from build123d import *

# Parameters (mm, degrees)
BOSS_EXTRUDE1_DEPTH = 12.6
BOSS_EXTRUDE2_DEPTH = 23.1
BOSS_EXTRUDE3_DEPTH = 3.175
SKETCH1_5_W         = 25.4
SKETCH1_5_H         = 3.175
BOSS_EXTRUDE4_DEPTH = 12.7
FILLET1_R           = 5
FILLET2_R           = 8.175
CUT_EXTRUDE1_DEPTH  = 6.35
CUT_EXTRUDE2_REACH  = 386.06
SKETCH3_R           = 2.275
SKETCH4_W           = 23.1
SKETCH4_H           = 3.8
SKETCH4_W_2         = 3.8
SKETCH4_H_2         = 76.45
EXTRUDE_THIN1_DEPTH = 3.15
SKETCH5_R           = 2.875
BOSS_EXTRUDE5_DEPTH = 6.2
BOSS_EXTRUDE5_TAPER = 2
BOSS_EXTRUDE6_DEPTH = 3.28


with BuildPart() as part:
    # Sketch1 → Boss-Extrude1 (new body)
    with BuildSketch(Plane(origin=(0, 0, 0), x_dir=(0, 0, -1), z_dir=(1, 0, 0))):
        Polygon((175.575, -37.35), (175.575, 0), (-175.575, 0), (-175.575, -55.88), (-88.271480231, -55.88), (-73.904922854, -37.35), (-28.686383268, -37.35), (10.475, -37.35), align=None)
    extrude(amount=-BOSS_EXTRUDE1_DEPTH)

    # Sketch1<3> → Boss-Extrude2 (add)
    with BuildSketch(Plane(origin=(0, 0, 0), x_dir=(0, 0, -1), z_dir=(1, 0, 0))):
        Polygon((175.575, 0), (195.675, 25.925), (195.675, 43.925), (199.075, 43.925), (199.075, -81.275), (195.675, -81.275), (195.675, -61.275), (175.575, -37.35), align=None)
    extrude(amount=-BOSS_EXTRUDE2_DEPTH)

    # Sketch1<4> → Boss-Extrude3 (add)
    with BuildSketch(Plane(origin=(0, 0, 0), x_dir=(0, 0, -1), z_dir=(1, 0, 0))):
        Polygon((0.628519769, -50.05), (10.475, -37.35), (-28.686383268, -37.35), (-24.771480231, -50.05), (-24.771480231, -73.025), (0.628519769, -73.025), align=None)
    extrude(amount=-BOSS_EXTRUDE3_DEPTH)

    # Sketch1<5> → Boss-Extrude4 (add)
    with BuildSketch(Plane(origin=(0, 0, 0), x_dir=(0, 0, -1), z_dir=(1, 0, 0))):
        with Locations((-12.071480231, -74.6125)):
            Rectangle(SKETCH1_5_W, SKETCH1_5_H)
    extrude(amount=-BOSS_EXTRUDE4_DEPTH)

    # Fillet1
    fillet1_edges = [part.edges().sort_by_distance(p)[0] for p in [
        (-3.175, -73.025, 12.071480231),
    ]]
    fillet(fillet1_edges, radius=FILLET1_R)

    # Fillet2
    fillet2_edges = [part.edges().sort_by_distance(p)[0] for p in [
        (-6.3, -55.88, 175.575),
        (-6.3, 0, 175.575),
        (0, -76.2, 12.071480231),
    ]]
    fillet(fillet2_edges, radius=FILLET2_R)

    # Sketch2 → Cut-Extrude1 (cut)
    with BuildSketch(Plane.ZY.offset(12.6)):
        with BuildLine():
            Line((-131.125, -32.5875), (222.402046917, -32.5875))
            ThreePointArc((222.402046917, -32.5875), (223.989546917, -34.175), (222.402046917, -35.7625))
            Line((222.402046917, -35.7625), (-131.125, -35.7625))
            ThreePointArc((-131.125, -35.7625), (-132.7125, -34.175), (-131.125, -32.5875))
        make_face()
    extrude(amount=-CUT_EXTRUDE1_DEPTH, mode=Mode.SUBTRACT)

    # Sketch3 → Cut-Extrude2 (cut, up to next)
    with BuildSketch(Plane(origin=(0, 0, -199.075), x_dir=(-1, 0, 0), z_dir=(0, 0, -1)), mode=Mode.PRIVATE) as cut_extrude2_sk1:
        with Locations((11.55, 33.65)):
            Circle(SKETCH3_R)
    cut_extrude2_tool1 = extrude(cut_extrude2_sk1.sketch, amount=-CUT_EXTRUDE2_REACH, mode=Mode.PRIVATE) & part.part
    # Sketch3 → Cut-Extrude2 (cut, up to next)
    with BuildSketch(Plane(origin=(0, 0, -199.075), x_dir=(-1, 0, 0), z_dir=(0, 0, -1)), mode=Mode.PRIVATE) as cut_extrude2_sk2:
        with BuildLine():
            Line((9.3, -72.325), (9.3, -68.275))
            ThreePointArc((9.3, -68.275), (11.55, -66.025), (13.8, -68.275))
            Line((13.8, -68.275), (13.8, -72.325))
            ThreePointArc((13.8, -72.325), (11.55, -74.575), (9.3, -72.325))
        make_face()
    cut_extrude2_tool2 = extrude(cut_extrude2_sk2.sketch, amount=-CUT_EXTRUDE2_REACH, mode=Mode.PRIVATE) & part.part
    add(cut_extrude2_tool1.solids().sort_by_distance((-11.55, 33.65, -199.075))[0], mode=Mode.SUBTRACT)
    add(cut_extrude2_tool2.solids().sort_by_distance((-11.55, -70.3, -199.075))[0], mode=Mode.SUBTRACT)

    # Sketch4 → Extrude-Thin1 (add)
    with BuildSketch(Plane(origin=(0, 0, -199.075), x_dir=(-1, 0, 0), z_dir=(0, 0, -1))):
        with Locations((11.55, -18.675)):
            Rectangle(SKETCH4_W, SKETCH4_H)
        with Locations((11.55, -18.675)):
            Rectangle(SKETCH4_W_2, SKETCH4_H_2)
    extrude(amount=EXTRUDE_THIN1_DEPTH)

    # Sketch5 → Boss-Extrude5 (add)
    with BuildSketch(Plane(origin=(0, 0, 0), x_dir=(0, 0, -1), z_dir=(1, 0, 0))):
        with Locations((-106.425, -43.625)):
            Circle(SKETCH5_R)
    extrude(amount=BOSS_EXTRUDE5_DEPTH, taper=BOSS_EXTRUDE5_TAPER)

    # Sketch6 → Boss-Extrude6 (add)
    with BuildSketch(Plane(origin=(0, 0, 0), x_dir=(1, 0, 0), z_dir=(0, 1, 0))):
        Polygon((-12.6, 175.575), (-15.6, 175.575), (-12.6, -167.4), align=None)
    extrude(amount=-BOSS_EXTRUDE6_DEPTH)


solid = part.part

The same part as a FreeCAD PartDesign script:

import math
import FreeCAD as App
import Part
import Sketcher
from FreeCAD import Vector


def edges_at(feature, points):
    """Names of the edges that pass closest to the given points."""
    edges = feature.Shape.Edges
    near = lambda p: min(range(len(edges)), key=lambda i: edges[i].distToShape(Part.Vertex(*p))[0])
    return sorted({f"Edge{near(p) + 1}" for p in points})


def add_polygon(sketch, points):
    """Adds a closed chain of lines whose ends are joined by coincident constraints."""
    first, n = sketch.GeometryCount, len(points)
    for a, b in zip(points, points[1:] + points[:1]):
        sketch.addGeometry(Part.LineSegment(App.Vector(*a, 0), App.Vector(*b, 0)), False)
    for i in range(n):
        sketch.addConstraint(Sketcher.Constraint("Coincident", first + i, 2, first + (i + 1) % n, 1))

doc = App.newDocument("Part")
body = doc.addObject("PartDesign::Body", "Body")

# Sketch on YZ plane
sketch1 = body.newObject("Sketcher::SketchObject", "Sketch")
sketch1.AttachmentSupport = (doc.getObject("YZ_Plane"), [""])
sketch1.MapMode = "FlatFace"
add_polygon(sketch1, [(-37.35, -175.575), (0, -175.575), (0, 175.575), (-55.88, 175.575), (-55.88, 88.27148), (-37.35, 73.904923)])  # lines 0-5
sketch1.addConstraint(Sketcher.Constraint("Horizontal", 0))
sketch1.addConstraint(Sketcher.Constraint("Vertical", 1))
sketch1.addConstraint(Sketcher.Constraint("Horizontal", 2))
sketch1.addConstraint(Sketcher.Constraint("Vertical", 3))
sketch1.addConstraint(Sketcher.Constraint("Vertical", 5))
sketch1.addConstraint(Sketcher.Constraint("Symmetric", 0, 2, 1, 2, -1, 1))
sketch1.addConstraint(Sketcher.Constraint("DistanceX", 0, 1, 0, 2, 37.35))
sketch1.addConstraint(Sketcher.Constraint("DistanceX", 2, 2, 2, 1, 55.88))
sketch1.addConstraint(Sketcher.Constraint("DistanceY", 1, 1, 1, 2, 351.15))
sketch1.addConstraint(Sketcher.Constraint("DistanceY", 3, 2, 3, 1, 87.30352))
sketch1.addConstraint(Sketcher.Constraint("DistanceY", 5, 2, 5, 1, 249.479923))
pad1 = body.newObject("PartDesign::Pad", "Pad")
pad1.Profile = sketch1
pad1.Length = 12.6
pad1.Reversed = True

# Sketch on YZ plane
sketch2 = body.newObject("Sketcher::SketchObject", "Sketch001")
sketch2.AttachmentSupport = (doc.getObject("YZ_Plane"), [""])
sketch2.MapMode = "FlatFace"
add_polygon(sketch2, [(25.925, -195.675), (0, -175.575), (-37.35, -175.575), (-61.275, -195.675), (-81.275, -195.675), (-81.275, -199.075), (43.925, -199.075), (43.925, -195.675)])  # lines 0-7
sketch2.addConstraint(Sketcher.Constraint("Horizontal", 1))
sketch2.addConstraint(Sketcher.Constraint("Horizontal", 3))
sketch2.addConstraint(Sketcher.Constraint("Vertical", 4))
sketch2.addConstraint(Sketcher.Constraint("Horizontal", 5))
sketch2.addConstraint(Sketcher.Constraint("Vertical", 6))
sketch2.addConstraint(Sketcher.Constraint("Horizontal", 7))
sketch2.addConstraint(Sketcher.Constraint("PointOnObject", 0, 2, -2))
sketch2.addConstraint(Sketcher.Constraint("Horizontal", 3, 2, 6, 2))
sketch2.addConstraint(Sketcher.Constraint("DistanceX", 3, 2, 3, 1, 20.0))
sketch2.addConstraint(Sketcher.Constraint("DistanceX", 7, 2, 7, 1, 18.0))
sketch2.addConstraint(Sketcher.Constraint("DistanceX", 5, 1, 5, 2, 125.2))
sketch2.addConstraint(Sketcher.Constraint("DistanceY", 4, 2, 4, 1, 3.4))
sketch2.addConstraint(Sketcher.Constraint("DistanceX", 1, 2, 1, 1, 37.35))
sketch2.addConstraint(Sketcher.Constraint("DistanceY", 2, 2, 1, 2, 20.1))
sketch2.addConstraint(Sketcher.Constraint("DistanceY", 0, 2, -1, 1, 175.575))
sketch2.addConstraint(Sketcher.Constraint("DistanceX", 2, 2, -1, 1, 61.275))
pad2 = body.newObject("PartDesign::Pad", "Pad001")
pad2.Profile = sketch2
pad2.Length = 23.1
pad2.Reversed = True

# Sketch on YZ plane
sketch3 = body.newObject("Sketcher::SketchObject", "Sketch002")
sketch3.AttachmentSupport = (doc.getObject("YZ_Plane"), [""])
sketch3.MapMode = "FlatFace"
add_polygon(sketch3, [(-50.05, -0.62852), (-37.35, -10.475), (-37.35, 28.686383), (-50.05, 24.77148), (-73.025, 24.77148), (-73.025, -0.62852)])  # lines 0-5
sketch3.addConstraint(Sketcher.Constraint("Vertical", 1))
sketch3.addConstraint(Sketcher.Constraint("Horizontal", 3))
sketch3.addConstraint(Sketcher.Constraint("Vertical", 4))
sketch3.addConstraint(Sketcher.Constraint("Horizontal", 5))
sketch3.addConstraint(Sketcher.Constraint("Vertical", 2, 2, 5, 2))
sketch3.addConstraint(Sketcher.Constraint("DistanceY", 4, 2, 4, 1, 25.4))
sketch3.addConstraint(Sketcher.Constraint("DistanceX", 2, 2, 1, 2, 12.7))
sketch3.addConstraint(Sketcher.Constraint("DistanceX", 3, 2, 3, 1, 22.975))
sketch3.addConstraint(Sketcher.Constraint("DistanceX", 0, 2, -1, 1, 37.35))
sketch3.addConstraint(Sketcher.Constraint("DistanceY", 0, 2, -1, 1, 10.475))
sketch3.addConstraint(Sketcher.Constraint("DistanceY", 1, 1, 1, 2, 39.161383))
sketch3.addConstraint(Sketcher.Constraint("DistanceY", -1, 1, 2, 2, 24.77148))
pad3 = body.newObject("PartDesign::Pad", "Pad002")
pad3.Profile = sketch3
pad3.Length = 3.175
pad3.Reversed = True

# Sketch on YZ plane
sketch4 = body.newObject("Sketcher::SketchObject", "Sketch003")
sketch4.AttachmentSupport = (doc.getObject("YZ_Plane"), [""])
sketch4.MapMode = "FlatFace"
add_polygon(sketch4, [(-73.025, 24.77148), (-76.2, 24.77148), (-76.2, -0.62852), (-73.025, -0.62852)])  # lines 0-3
sketch4.addConstraint(Sketcher.Constraint("Horizontal", 0))
sketch4.addConstraint(Sketcher.Constraint("Vertical", 1))
sketch4.addConstraint(Sketcher.Constraint("Horizontal", 2))
sketch4.addConstraint(Sketcher.Constraint("Vertical", 3))
sketch4.addConstraint(Sketcher.Constraint("DistanceY", 1, 2, 1, 1, 25.4))
sketch4.addConstraint(Sketcher.Constraint("DistanceX", 0, 2, -1, 1, 76.2))
sketch4.addConstraint(Sketcher.Constraint("DistanceX", 0, 2, 0, 1, 3.175))
sketch4.addConstraint(Sketcher.Constraint("DistanceY", -1, 1, 0, 2, 24.77148))
pad4 = body.newObject("PartDesign::Pad", "Pad003")
pad4.Profile = sketch4
pad4.Length = 12.7
pad4.Reversed = True
doc.recompute()

fillet = body.newObject("PartDesign::Fillet", "Fillet")
fillet.Base = (pad4, edges_at(pad4, [(-3.175, -73.025, 12.071)]))
fillet.Radius = 5
doc.recompute()

fillet2 = body.newObject("PartDesign::Fillet", "Fillet001")
fillet2.Base = (fillet, edges_at(fillet, [(-6.3, -55.88, 175.575), (-6.3, 0, 175.575), (0, -76.2, 12.071)]))
fillet2.Radius = 8.175

# Sketch on YZ plane
sketch5 = body.newObject("Sketcher::SketchObject", "Sketch004")
sketch5.AttachmentSupport = (doc.getObject("YZ_Plane"), [""])
sketch5.MapMode = "FlatFace"
sketch5.AttachmentOffset = App.Placement(Vector(0, 0, -12.6), App.Rotation())
sketch5.addGeometry(Part.LineSegment(Vector(-32.5875, 222.402047, 0), Vector(-32.5875, -131.125, 0)), False)
sketch5.addGeometry(Part.ArcOfCircle(Part.Circle(Vector(-34.175, -131.125, 0), Vector(0, 0, 1), 1.5875), math.radians(180), math.radians(360)), False)
sketch5.addGeometry(Part.LineSegment(Vector(-35.7625, -131.125, 0), Vector(-35.7625, 222.402047, 0)), False)
sketch5.addGeometry(Part.ArcOfCircle(Part.Circle(Vector(-34.175, 222.402047, 0), Vector(0, 0, 1), 1.5875), math.radians(0), math.radians(180)), False)
sketch5.addConstraint(Sketcher.Constraint("Tangent", 0, 2, 1, 2))
sketch5.addConstraint(Sketcher.Constraint("Tangent", 1, 1, 2, 1))
sketch5.addConstraint(Sketcher.Constraint("Tangent", 2, 2, 3, 2))
sketch5.addConstraint(Sketcher.Constraint("Tangent", 3, 1, 0, 1))
sketch5.addConstraint(Sketcher.Constraint("Vertical", 0))
sketch5.addConstraint(Sketcher.Constraint("Vertical", 2))
sketch5.addConstraint(Sketcher.Constraint("Radius", 1, 1.5875))
sketch5.addConstraint(Sketcher.Constraint("DistanceX", 1, 3, -1, 1, 34.175))
sketch5.addConstraint(Sketcher.Constraint("DistanceY", 1, 3, -1, 1, 131.125))
sketch5.addConstraint(Sketcher.Constraint("DistanceY", 0, 2, 0, 1, 353.527047))
pocket1 = body.newObject("PartDesign::Pocket", "Pocket")
pocket1.Profile = sketch5
pocket1.Length = 6.35
pocket1.Reversed = True

# Sketch on XY plane
sketch6 = body.newObject("Sketcher::SketchObject", "Sketch005")
sketch6.AttachmentSupport = (doc.getObject("XY_Plane"), [""])
sketch6.MapMode = "FlatFace"
sketch6.AttachmentOffset = App.Placement(Vector(0, 0, -199.075), App.Rotation())
sketch6.addGeometry(Part.Circle(Vector(-11.55, 33.65, 0), Vector(0, 0, 1), 2.275), False)
sketch6.addConstraint(Sketcher.Constraint("Diameter", 0, 4.55))
sketch6.addConstraint(Sketcher.Constraint("DistanceX", 0, 3, -1, 1, 11.55))
sketch6.addConstraint(Sketcher.Constraint("DistanceY", -1, 1, 0, 3, 33.65))
pocket2 = body.newObject("PartDesign::Pocket", "Pocket001")
pocket2.Profile = sketch6
pocket2.Type = "UpToFirst"
pocket2.Reversed = True

# Sketch on XY plane
sketch7 = body.newObject("Sketcher::SketchObject", "Sketch006")
sketch7.AttachmentSupport = (doc.getObject("XY_Plane"), [""])
sketch7.MapMode = "FlatFace"
sketch7.AttachmentOffset = App.Placement(Vector(0, 0, -199.075), App.Rotation())
sketch7.addGeometry(Part.LineSegment(Vector(-9.3, -68.275, 0), Vector(-9.3, -72.325, 0)), False)
sketch7.addGeometry(Part.ArcOfCircle(Part.Circle(Vector(-11.55, -72.325, 0), Vector(0, 0, 1), 2.25), math.radians(180), math.radians(360)), False)
sketch7.addGeometry(Part.LineSegment(Vector(-13.8, -72.325, 0), Vector(-13.8, -68.275, 0)), False)
sketch7.addGeometry(Part.ArcOfCircle(Part.Circle(Vector(-11.55, -68.275, 0), Vector(0, 0, 1), 2.25), math.radians(0), math.radians(180)), False)
sketch7.addConstraint(Sketcher.Constraint("Tangent", 0, 2, 1, 2))
sketch7.addConstraint(Sketcher.Constraint("Tangent", 1, 1, 2, 1))
sketch7.addConstraint(Sketcher.Constraint("Tangent", 2, 2, 3, 2))
sketch7.addConstraint(Sketcher.Constraint("Tangent", 3, 1, 0, 1))
sketch7.addConstraint(Sketcher.Constraint("Vertical", 0))
sketch7.addConstraint(Sketcher.Constraint("Vertical", 2))
sketch7.addConstraint(Sketcher.Constraint("Radius", 1, 2.25))
sketch7.addConstraint(Sketcher.Constraint("DistanceY", 0, 2, 0, 1, 4.05))
sketch7.addConstraint(Sketcher.Constraint("DistanceX", 0, 2, -1, 1, 9.3))
sketch7.addConstraint(Sketcher.Constraint("DistanceY", 1, 3, -1, 1, 72.325))
pocket3 = body.newObject("PartDesign::Pocket", "Pocket002")
pocket3.Profile = sketch7
pocket3.Type = "UpToFirst"
pocket3.Reversed = True

# Sketch on XY plane
sketch8 = body.newObject("Sketcher::SketchObject", "Sketch007")
sketch8.AttachmentSupport = (doc.getObject("XY_Plane"), [""])
sketch8.MapMode = "FlatFace"
sketch8.AttachmentOffset = App.Placement(Vector(0, 0, -199.075), App.Rotation())
add_polygon(sketch8, [(0, -16.775), (0, -20.575), (-9.65, -20.575), (-9.65, -56.9), (-13.45, -56.9), (-13.45, -20.575), (-23.1, -20.575), (-23.1, -16.775), (-13.45, -16.775), (-13.45, 19.55), (-9.65, 19.55), (-9.65, -16.775)])  # lines 0-11
sketch8.addConstraint(Sketcher.Constraint("Vertical", 0))
sketch8.addConstraint(Sketcher.Constraint("Horizontal", 1))
sketch8.addConstraint(Sketcher.Constraint("Vertical", 2))
sketch8.addConstraint(Sketcher.Constraint("Horizontal", 3))
sketch8.addConstraint(Sketcher.Constraint("Vertical", 4))
sketch8.addConstraint(Sketcher.Constraint("Horizontal", 5))
sketch8.addConstraint(Sketcher.Constraint("Vertical", 6))
sketch8.addConstraint(Sketcher.Constraint("Horizontal", 7))
sketch8.addConstraint(Sketcher.Constraint("Vertical", 8))
sketch8.addConstraint(Sketcher.Constraint("Horizontal", 9))
sketch8.addConstraint(Sketcher.Constraint("Vertical", 10))
sketch8.addConstraint(Sketcher.Constraint("Horizontal", 11))
sketch8.addConstraint(Sketcher.Constraint("PointOnObject", 0, 2, -2))
sketch8.addConstraint(Sketcher.Constraint("Horizontal", 1, 2, 4, 2))
sketch8.addConstraint(Sketcher.Constraint("Horizontal", 7, 2, 10, 2))
sketch8.addConstraint(Sketcher.Constraint("Vertical", 4, 2, 7, 2))
sketch8.addConstraint(Sketcher.Constraint("Vertical", 2, 2, 9, 2))
sketch8.addConstraint(Sketcher.Constraint("Equal", 1, 5))
sketch8.addConstraint(Sketcher.Constraint("Equal", 9, 0))
sketch8.addConstraint(Sketcher.Constraint("Equal", 4, 8))
sketch8.addConstraint(Sketcher.Constraint("DistanceX", 3, 2, 3, 1, 3.8))
sketch8.addConstraint(Sketcher.Constraint("DistanceX", 1, 2, 1, 1, 9.65))
sketch8.addConstraint(Sketcher.Constraint("DistanceY", 2, 2, -1, 1, 56.9))
sketch8.addConstraint(Sketcher.Constraint("DistanceY", 2, 2, 2, 1, 36.325))
pad5 = body.newObject("PartDesign::Pad", "Pad004")
pad5.Profile = sketch8
pad5.Length = 3.15
pad5.Reversed = True

# Sketch on YZ plane
sketch9 = body.newObject("Sketcher::SketchObject", "Sketch008")
sketch9.AttachmentSupport = (doc.getObject("YZ_Plane"), [""])
sketch9.MapMode = "FlatFace"
sketch9.addGeometry(Part.Circle(Vector(-43.625, 106.425, 0), Vector(0, 0, 1), 2.875), False)
sketch9.addConstraint(Sketcher.Constraint("Diameter", 0, 5.75))
sketch9.addConstraint(Sketcher.Constraint("DistanceX", 0, 3, -1, 1, 43.625))
sketch9.addConstraint(Sketcher.Constraint("DistanceY", -1, 1, 0, 3, 106.425))
pad6 = body.newObject("PartDesign::Pad", "Pad005")
pad6.Profile = sketch9
pad6.Length = 6.2
pad6.TaperAngle = -2

# Sketch on XZ plane
sketch10 = body.newObject("Sketcher::SketchObject", "Sketch009")
sketch10.AttachmentSupport = (doc.getObject("XZ_Plane"), [""])
sketch10.MapMode = "FlatFace"
add_polygon(sketch10, [(-12.6, -175.575), (-15.6, -175.575), (-12.6, 167.4)])  # lines 0-2
sketch10.addConstraint(Sketcher.Constraint("Horizontal", 0))
sketch10.addConstraint(Sketcher.Constraint("Vertical", 2))
sketch10.addConstraint(Sketcher.Constraint("DistanceX", 0, 2, 0, 1, 3.0))
sketch10.addConstraint(Sketcher.Constraint("DistanceX", 0, 2, -1, 1, 15.6))
sketch10.addConstraint(Sketcher.Constraint("DistanceY", -1, 1, 1, 2, 167.4))
sketch10.addConstraint(Sketcher.Constraint("DistanceY", 2, 2, 2, 1, 342.975))
pad7 = body.newObject("PartDesign::Pad", "Pad006")
pad7.Profile = sketch10
pad7.Length = 3.28

doc.recompute()
